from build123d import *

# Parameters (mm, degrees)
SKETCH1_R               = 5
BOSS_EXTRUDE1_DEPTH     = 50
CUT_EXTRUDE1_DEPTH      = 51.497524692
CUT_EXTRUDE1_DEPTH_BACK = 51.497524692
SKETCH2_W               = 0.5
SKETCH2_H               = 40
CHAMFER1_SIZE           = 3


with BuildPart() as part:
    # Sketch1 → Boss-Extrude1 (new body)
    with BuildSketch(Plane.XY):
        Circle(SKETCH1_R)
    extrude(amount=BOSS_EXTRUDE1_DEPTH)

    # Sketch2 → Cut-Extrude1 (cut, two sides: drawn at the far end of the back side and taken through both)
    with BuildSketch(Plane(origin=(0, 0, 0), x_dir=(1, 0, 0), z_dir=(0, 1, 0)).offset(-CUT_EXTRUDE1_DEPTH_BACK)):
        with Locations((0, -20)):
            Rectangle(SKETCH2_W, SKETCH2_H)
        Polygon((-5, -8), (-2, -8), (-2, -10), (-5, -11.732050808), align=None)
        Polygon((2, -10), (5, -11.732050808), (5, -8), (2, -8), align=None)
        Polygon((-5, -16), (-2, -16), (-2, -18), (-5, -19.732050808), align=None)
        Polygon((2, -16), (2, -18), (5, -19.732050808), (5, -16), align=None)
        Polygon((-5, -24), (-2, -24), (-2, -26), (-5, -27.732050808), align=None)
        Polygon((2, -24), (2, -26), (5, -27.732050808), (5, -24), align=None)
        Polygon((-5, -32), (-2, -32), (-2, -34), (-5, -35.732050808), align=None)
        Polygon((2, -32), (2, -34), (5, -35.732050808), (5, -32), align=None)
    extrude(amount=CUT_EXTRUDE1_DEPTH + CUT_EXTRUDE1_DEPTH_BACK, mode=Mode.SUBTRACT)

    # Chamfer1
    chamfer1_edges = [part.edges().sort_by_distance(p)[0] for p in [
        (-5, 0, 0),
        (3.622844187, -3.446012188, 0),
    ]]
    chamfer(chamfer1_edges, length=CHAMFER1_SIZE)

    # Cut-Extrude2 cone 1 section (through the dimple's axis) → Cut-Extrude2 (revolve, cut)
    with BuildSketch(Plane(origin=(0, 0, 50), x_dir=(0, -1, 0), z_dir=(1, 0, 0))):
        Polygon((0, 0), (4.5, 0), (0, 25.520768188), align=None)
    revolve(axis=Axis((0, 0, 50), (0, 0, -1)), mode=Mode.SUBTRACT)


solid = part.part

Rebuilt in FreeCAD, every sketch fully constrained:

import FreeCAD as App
import Part
import Sketcher
from FreeCAD import Vector
Q = App.Units.Quantity


def edges_at(feature, points):
    """Names of the edges that pass closest to the given points."""
    edges = feature.Shape.Edges
    near = lambda p: min(range(len(edges)), key=lambda i: edges[i].distToShape(Part.Vertex(*p))[0])
    return sorted({f"Edge{near(p) + 1}" for p in points})


def add_polygon(sketch, points):
    """Adds a closed chain of lines whose ends are joined by coincident constraints."""
    first, n = sketch.GeometryCount, len(points)
    for a, b in zip(points, points[1:] + points[:1]):
        sketch.addGeometry(Part.LineSegment(App.Vector(*a, 0), App.Vector(*b, 0)), False)
    for i in range(n):
        sketch.addConstraint(Sketcher.Constraint("Coincident", first + i, 2, first + (i + 1) % n, 1))

doc = App.newDocument("Part")
body = doc.addObject("PartDesign::Body", "Body")

# Sketch on XY plane
sketch1 = doc.addObject("Sketcher::SketchObject", "Sketch")
body.addObject(sketch1)
sketch1.AttachmentSupport = (doc.XY_Plane, [""])
sketch1.MapMode = "FlatFace"
sketch1.addGeometry(Part.Circle(Vector(0, 0, 0), Vector(0, 0, 1), 5), False)
sketch1.addConstraint(Sketcher.Constraint("Coincident", 0, 3, -1, 1))
sketch1.addConstraint(Sketcher.Constraint("Diameter", 0, 10.0))
pad1 = doc.addObject("PartDesign::Pad", "Pad")
body.addObject(pad1)
pad1.Profile = sketch1
pad1.Length = 50

# Sketch on XZ plane
sketch2 = doc.addObject("Sketcher::SketchObject", "Sketch001")
body.addObject(sketch2)
sketch2.AttachmentSupport = (doc.XZ_Plane, [""])
sketch2.MapMode = "FlatFace"
add_polygon(sketch2, [(-0.2, 0), (-0.2, 40), (0.2, 40), (0.2, 0)])  # lines 0-3
add_polygon(sketch2, [(-2, 8), (-5, 8), (-5, 11.7), (-2, 10)])  # lines 4-7
add_polygon(sketch2, [(2, 10), (5, 11.7), (5, 8), (2, 8)])  # lines 8-11
add_polygon(sketch2, [(-2, 16), (-5, 16), (-5, 19.7), (-2, 18)])  # lines 12-15
add_polygon(sketch2, [(2, 16), (2, 18), (5, 19.7), (5, 16)])  # lines 16-19
add_polygon(sketch2, [(-2, 24), (-5, 24), (-5, 27.7), (-2, 26)])  # lines 20-23
add_polygon(sketch2, [(2, 24), (2, 26), (5, 27.7), (5, 24)])  # lines 24-27
add_polygon(sketch2, [(-2, 32), (-5, 32), (-5, 35.7), (-2, 34)])  # lines 28-31
add_polygon(sketch2, [(2, 32), (2, 34), (5, 35.7), (5, 32)])  # lines 32-35
sketch2.addConstraint(Sketcher.Constraint("Vertical", 0))
sketch2.addConstraint(Sketcher.Constraint("Horizontal", 1))
sketch2.addConstraint(Sketcher.Constraint("Vertical", 2))
sketch2.addConstraint(Sketcher.Constraint("Horizontal", 3))
sketch2.addConstraint(Sketcher.Constraint("Horizontal", 4))
sketch2.addConstraint(Sketcher.Constraint("Vertical", 5))
sketch2.addConstraint(Sketcher.Constraint("Vertical", 7))
sketch2.addConstraint(Sketcher.Constraint("Vertical", 9))
sketch2.addConstraint(Sketcher.Constraint("Horizontal", 10))
sketch2.addConstraint(Sketcher.Constraint("Vertical", 11))
sketch2.addConstraint(Sketcher.Constraint("Horizontal", 12))
sketch2.addConstraint(Sketcher.Constraint("Vertical", 13))
sketch2.addConstraint(Sketcher.Constraint("Vertical", 15))
sketch2.addConstraint(Sketcher.Constraint("Vertical", 16))
sketch2.addConstraint(Sketcher.Constraint("Vertical", 18))
sketch2.addConstraint(Sketcher.Constraint("Horizontal", 19))
sketch2.addConstraint(Sketcher.Constraint("Horizontal", 20))
sketch2.addConstraint(Sketcher.Constraint("Vertical", 21))
sketch2.addConstraint(Sketcher.Constraint("Vertical", 23))
sketch2.addConstraint(Sketcher.Constraint("Vertical", 24))
sketch2.addConstraint(Sketcher.Constraint("Vertical", 26))
sketch2.addConstraint(Sketcher.Constraint("Horizontal", 27))
sketch2.addConstraint(Sketcher.Constraint("Horizontal", 28))
sketch2.addConstraint(Sketcher.Constraint("Vertical", 29))
sketch2.addConstraint(Sketcher.Constraint("Vertical", 31))
sketch2.addConstraint(Sketcher.Constraint("Vertical", 32))
sketch2.addConstraint(Sketcher.Constraint("Vertical", 34))
sketch2.addConstraint(Sketcher.Constraint("Horizontal", 35))
sketch2.addConstraint(Sketcher.Constraint("Symmetric", 2, 2, 3, 2, -1, 1))
sketch2.addConstraint(Sketcher.Constraint("Symmetric", 5, 2, 8, 2, -2))
sketch2.addConstraint(Sketcher.Constraint("Symmetric", 7, 2, 10, 2, -2))
sketch2.addConstraint(Sketcher.Constraint("Symmetric", 14, 2, 16, 2, -2))
sketch2.addConstraint(Sketcher.Constraint("Symmetric", 13, 2, 17, 2, -2))
sketch2.addConstraint(Sketcher.Constraint("Symmetric", 22, 2, 24, 2, -2))
sketch2.addConstraint(Sketcher.Constraint("Symmetric", 21, 2, 25, 2, -2))
sketch2.addConstraint(Sketcher.Constraint("Symmetric", 30, 2, 32, 2, -2))
sketch2.addConstraint(Sketcher.Constraint("Symmetric", 29, 2, 33, 2, -2))
sketch2.addConstraint(Sketcher.Constraint("Parallel", 6, 14))
sketch2.addConstraint(Sketcher.Constraint("Parallel", 8, 17))
sketch2.addConstraint(Sketcher.Constraint("Parallel", 14, 22))
sketch2.addConstraint(Sketcher.Constraint("Parallel", 22, 30))
sketch2.addConstraint(Sketcher.Constraint("Horizontal", 15, 2, 18, 2))
sketch2.addConstraint(Sketcher.Constraint("Horizontal", 23, 2, 26, 2))
sketch2.addConstraint(Sketcher.Constraint("Horizontal", 31, 2, 34, 2))
sketch2.addConstraint(Sketcher.Constraint("Vertical", 5, 2, 12, 2))
sketch2.addConstraint(Sketcher.Constraint("Vertical", 7, 2, 14, 2))
sketch2.addConstraint(Sketcher.Constraint("Vertical", 13, 2, 20, 2))
sketch2.addConstraint(Sketcher.Constraint("Vertical", 15, 2, 22, 2))
sketch2.addConstraint(Sketcher.Constraint("Vertical", 21, 2, 28, 2))
sketch2.addConstraint(Sketcher.Constraint("Vertical", 23, 2, 30, 2))
sketch2.addConstraint(Sketcher.Constraint("Equal", 9, 13))
sketch2.addConstraint(Sketcher.Constraint("Equal", 18, 21))
sketch2.addConstraint(Sketcher.Constraint("Equal", 26, 29))
sketch2.addConstraint(Sketcher.Constraint("DistanceX", 4, 2, 4, 1, 3.0))
sketch2.addConstraint(Sketcher.Constraint("DistanceY", 0, 1, 0, 2, 40.0))
sketch2.addConstraint(Sketcher.Constraint("DistanceY", 7, 2, 7, 1, 2.0))
sketch2.addConstraint(Sketcher.Constraint("Angle", 6, Q("-30 deg")))
sketch2.addConstraint(Sketcher.Constraint("DistanceX", 1, 1, 1, 2, 0.5))
sketch2.addConstraint(Sketcher.Constraint("DistanceX", 4, 2, -1, 1, 5.0))
sketch2.addConstraint(Sketcher.Constraint("DistanceY", -1, 1, 4, 2, 8.0))
sketch2.addConstraint(Sketcher.Constraint("DistanceY", -1, 1, 12, 2, 16.0))
sketch2.addConstraint(Sketcher.Constraint("DistanceY", -1, 1, 20, 2, 24.0))
sketch2.addConstraint(Sketcher.Constraint("DistanceY", -1, 1, 28, 2, 32.0))
pocket1 = doc.addObject("PartDesign::Pocket", "Pocket")
body.addObject(pocket1)
pocket1.Profile = sketch2
pocket1.Type = "ThroughAll"
pocket1.Midplane = True
doc.recompute()

chamfer = doc.addObject("PartDesign::Chamfer", "Chamfer")
body.addObject(chamfer)
chamfer.Base = (pocket1, edges_at(pocket1, [(-5, 0, 0), (3.623, -3.446, 0)]))
chamfer.Size = 3

# Sketch on YZ plane
sketch3 = doc.addObject("Sketcher::SketchObject", "Sketch002")
body.addObject(sketch3)
sketch3.AttachmentSupport = (doc.YZ_Plane, [""])
sketch3.MapMode = "FlatFace"
add_polygon(sketch3, [(0, 50), (-4.5, 50), (0, 24.5)])  # lines 0-2
sketch3.addConstraint(Sketcher.Constraint("Horizontal", 0))
sketch3.addConstraint(Sketcher.Constraint("Vertical", 2))
sketch3.addConstraint(Sketcher.Constraint("PointOnObject", 1, 2, -2))
sketch3.addConstraint(Sketcher.Constraint("Angle", 1, Q("-80 deg")))
sketch3.addConstraint(Sketcher.Constraint("DistanceX", 0, 2, 0, 1, 4.5))
sketch3.addConstraint(Sketcher.Constraint("DistanceY", -1, 1, 0, 2, 50.0))
groove = doc.addObject("PartDesign::Groove", "Groove")
body.addObject(groove)
groove.Profile = sketch3
groove.ReferenceAxis = (sketch3, ["V_Axis"])
groove.Angle = 360

doc.recompute()
